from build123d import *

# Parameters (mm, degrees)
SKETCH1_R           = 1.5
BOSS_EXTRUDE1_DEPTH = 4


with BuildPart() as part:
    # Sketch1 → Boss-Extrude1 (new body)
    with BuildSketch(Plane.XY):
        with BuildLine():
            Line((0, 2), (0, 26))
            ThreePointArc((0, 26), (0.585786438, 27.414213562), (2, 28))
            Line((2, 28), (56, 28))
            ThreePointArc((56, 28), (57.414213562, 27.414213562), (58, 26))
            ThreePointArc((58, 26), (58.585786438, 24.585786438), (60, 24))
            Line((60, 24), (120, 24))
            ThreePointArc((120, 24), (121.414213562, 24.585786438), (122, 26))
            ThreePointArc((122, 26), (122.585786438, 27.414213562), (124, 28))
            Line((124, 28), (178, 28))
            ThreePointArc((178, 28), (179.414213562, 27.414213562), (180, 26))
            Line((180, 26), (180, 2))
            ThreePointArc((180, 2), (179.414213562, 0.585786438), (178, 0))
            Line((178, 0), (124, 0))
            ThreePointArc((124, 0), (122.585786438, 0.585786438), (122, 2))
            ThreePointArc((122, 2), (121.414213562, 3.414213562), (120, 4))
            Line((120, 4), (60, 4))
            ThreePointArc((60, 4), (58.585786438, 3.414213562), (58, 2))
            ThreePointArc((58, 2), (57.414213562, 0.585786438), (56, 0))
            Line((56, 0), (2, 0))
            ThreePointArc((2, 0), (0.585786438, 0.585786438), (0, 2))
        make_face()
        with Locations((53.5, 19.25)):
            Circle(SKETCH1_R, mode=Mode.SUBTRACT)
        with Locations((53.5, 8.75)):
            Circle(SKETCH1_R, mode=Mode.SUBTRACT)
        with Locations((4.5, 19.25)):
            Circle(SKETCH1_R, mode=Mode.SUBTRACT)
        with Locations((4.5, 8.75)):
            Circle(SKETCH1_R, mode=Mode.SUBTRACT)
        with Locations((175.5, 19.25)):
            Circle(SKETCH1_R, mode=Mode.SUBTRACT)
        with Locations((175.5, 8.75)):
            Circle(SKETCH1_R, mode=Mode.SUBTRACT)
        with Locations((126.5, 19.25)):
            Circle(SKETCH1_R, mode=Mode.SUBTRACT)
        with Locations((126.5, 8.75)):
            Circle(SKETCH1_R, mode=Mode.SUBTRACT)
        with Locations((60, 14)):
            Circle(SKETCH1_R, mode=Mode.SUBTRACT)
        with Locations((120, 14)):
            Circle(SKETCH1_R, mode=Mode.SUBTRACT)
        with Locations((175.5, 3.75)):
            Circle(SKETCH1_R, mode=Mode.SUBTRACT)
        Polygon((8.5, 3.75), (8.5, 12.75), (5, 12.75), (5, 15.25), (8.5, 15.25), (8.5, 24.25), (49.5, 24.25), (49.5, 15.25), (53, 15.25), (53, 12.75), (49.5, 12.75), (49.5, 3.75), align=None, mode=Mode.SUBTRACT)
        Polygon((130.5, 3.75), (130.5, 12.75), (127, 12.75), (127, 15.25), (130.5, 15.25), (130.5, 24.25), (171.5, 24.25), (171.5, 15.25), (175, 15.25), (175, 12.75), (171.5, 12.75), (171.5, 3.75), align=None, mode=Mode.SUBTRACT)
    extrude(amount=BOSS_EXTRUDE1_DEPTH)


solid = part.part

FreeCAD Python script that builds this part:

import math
import FreeCAD as App
import Part
import Sketcher

doc = App.newDocument("Part")
params = doc.addObject("Spreadsheet::Sheet", "Params")
for row, (alias, value) in enumerate([
    ("sketch1_diameter", "3 mm"),
    ("sketch1_radius", "2 mm"),
    ("sketch1_width", "54 mm"),
    ("sketch1_width2", "60 mm"),
    ("sketch1_width3", "41 mm"),
    ("pad1_length", "4 mm"),
], start=1):
    params.set(f"A{row}", alias)
    params.set(f"B{row}", "=" + value)
    params.setAlias(f"B{row}", alias)

body = doc.addObject("PartDesign::Body", "Body")

# Sketch on XY plane
sketch1 = body.newObject("Sketcher::SketchObject", "Sketch")
sketch1.AttachmentSupport = (doc.getObject("XY_Plane"), [""])
sketch1.MapMode = "FlatFace"
sketch1.addGeometry([
    Part.LineSegment(App.Vector(0, 26, 0), App.Vector(0, 2, 0)),  # 0
    Part.ArcOfCircle(Part.Circle(App.Vector(2, 2, 0), App.Vector(0, 0, 1), 2), math.radians(-180), math.radians(-90)),  # 1
    Part.LineSegment(App.Vector(2, 0, 0), App.Vector(56, 0, 0)),  # 2
    Part.ArcOfCircle(Part.Circle(App.Vector(56, 2, 0), App.Vector(0, 0, 1), 2), math.radians(-90), math.radians(0)),  # 3
    Part.ArcOfCircle(Part.Circle(App.Vector(60, 2, 0), App.Vector(0, 0, 1), 2), math.radians(90), math.radians(180)),  # 4
    Part.LineSegment(App.Vector(60, 4, 0), App.Vector(120, 4, 0)),  # 5
    Part.ArcOfCircle(Part.Circle(App.Vector(120, 2, 0), App.Vector(0, 0, 1), 2), math.radians(0), math.radians(90)),  # 6
    Part.ArcOfCircle(Part.Circle(App.Vector(124, 2, 0), App.Vector(0, 0, 1), 2), math.radians(-180), math.radians(-90)),  # 7
    Part.LineSegment(App.Vector(124, 0, 0), App.Vector(178, 0, 0)),  # 8
    Part.ArcOfCircle(Part.Circle(App.Vector(178, 2, 0), App.Vector(0, 0, 1), 2), math.radians(-90), math.radians(0)),  # 9
    Part.LineSegment(App.Vector(180, 2, 0), App.Vector(180, 26, 0)),  # 10
    Part.ArcOfCircle(Part.Circle(App.Vector(178, 26, 0), App.Vector(0, 0, 1), 2), math.radians(0), math.radians(90)),  # 11
    Part.LineSegment(App.Vector(178, 28, 0), App.Vector(124, 28, 0)),  # 12
    Part.ArcOfCircle(Part.Circle(App.Vector(124, 26, 0), App.Vector(0, 0, 1), 2), math.radians(90), math.radians(180)),  # 13
    Part.ArcOfCircle(Part.Circle(App.Vector(120, 26, 0), App.Vector(0, 0, 1), 2), math.radians(-90), math.radians(0)),  # 14
    Part.LineSegment(App.Vector(120, 24, 0), App.Vector(60, 24, 0)),  # 15
    Part.ArcOfCircle(Part.Circle(App.Vector(60, 26, 0), App.Vector(0, 0, 1), 2), math.radians(-180), math.radians(-90)),  # 16
    Part.ArcOfCircle(Part.Circle(App.Vector(56, 26, 0), App.Vector(0, 0, 1), 2), math.radians(0), math.radians(90)),  # 17
    Part.LineSegment(App.Vector(56, 28, 0), App.Vector(2, 28, 0)),  # 18
    Part.ArcOfCircle(Part.Circle(App.Vector(2, 26, 0), App.Vector(0, 0, 1), 2), math.radians(90), math.radians(180)),  # 19
    Part.Circle(App.Vector(175.5, 3.8, 0), App.Vector(0, 0, 1), 1.5),  # 20
    Part.Circle(App.Vector(175.5, 8.8, 0), App.Vector(0, 0, 1), 1.5),  # 21
    Part.Circle(App.Vector(126.5, 8.8, 0), App.Vector(0, 0, 1), 1.5),  # 22
    Part.Circle(App.Vector(53.5, 8.8, 0), App.Vector(0, 0, 1), 1.5),  # 23
    Part.Circle(App.Vector(4.5, 8.8, 0), App.Vector(0, 0, 1), 1.5),  # 24
    Part.LineSegment(App.Vector(130.5, 3.8, 0), App.Vector(130.5, 12.8, 0)),  # 25
    Part.LineSegment(App.Vector(130.5, 12.8, 0), App.Vector(127, 12.8, 0)),  # 26
    Part.LineSegment(App.Vector(127, 12.8, 0), App.Vector(127, 15.2, 0)),  # 27
    Part.LineSegment(App.Vector(127, 15.2, 0), App.Vector(130.5, 15.2, 0)),  # 28
    Part.LineSegment(App.Vector(130.5, 15.2, 0), App.Vector(130.5, 24.2, 0)),  # 29
    Part.LineSegment(App.Vector(130.5, 24.2, 0), App.Vector(171.5, 24.2, 0)),  # 30
    Part.LineSegment(App.Vector(171.5, 24.2, 0), App.Vector(171.5, 15.2, 0)),  # 31
    Part.LineSegment(App.Vector(171.5, 15.2, 0), App.Vector(175, 15.2, 0)),  # 32
    Part.LineSegment(App.Vector(175, 15.2, 0), App.Vector(175, 12.8, 0)),  # 33
    Part.LineSegment(App.Vector(175, 12.8, 0), App.Vector(171.5, 12.8, 0)),  # 34
    Part.LineSegment(App.Vector(171.5, 12.8, 0), App.Vector(171.5, 3.8, 0)),  # 35
    Part.LineSegment(App.Vector(171.5, 3.8, 0), App.Vector(130.5, 3.8, 0)),  # 36
    Part.Circle(App.Vector(120, 14, 0), App.Vector(0, 0, 1), 1.5),  # 37
    Part.Circle(App.Vector(175.5, 19.2, 0), App.Vector(0, 0, 1), 1.5),  # 38
    Part.Circle(App.Vector(126.5, 19.2, 0), App.Vector(0, 0, 1), 1.5),  # 39
    Part.Circle(App.Vector(60, 14, 0), App.Vector(0, 0, 1), 1.5),  # 40
    Part.LineSegment(App.Vector(8.5, 3.8, 0), App.Vector(8.5, 12.8, 0)),  # 41
    Part.LineSegment(App.Vector(8.5, 12.8, 0), App.Vector(5, 12.8, 0)),  # 42
    Part.LineSegment(App.Vector(5, 12.8, 0), App.Vector(5, 15.2, 0)),  # 43
    Part.LineSegment(App.Vector(5, 15.2, 0), App.Vector(8.5, 15.2, 0)),  # 44
    Part.LineSegment(App.Vector(8.5, 15.2, 0), App.Vector(8.5, 24.2, 0)),  # 45
    Part.LineSegment(App.Vector(8.5, 24.2, 0), App.Vector(49.5, 24.2, 0)),  # 46
    Part.LineSegment(App.Vector(49.5, 24.2, 0), App.Vector(49.5, 15.2, 0)),  # 47
    Part.LineSegment(App.Vector(49.5, 15.2, 0), App.Vector(53, 15.2, 0)),  # 48
    Part.LineSegment(App.Vector(53, 15.2, 0), App.Vector(53, 12.8, 0)),  # 49
    Part.LineSegment(App.Vector(53, 12.8, 0), App.Vector(49.5, 12.8, 0)),  # 50
    Part.LineSegment(App.Vector(49.5, 12.8, 0), App.Vector(49.5, 3.8, 0)),  # 51
    Part.LineSegment(App.Vector(49.5, 3.8, 0), App.Vector(8.5, 3.8, 0)),  # 52
    Part.Circle(App.Vector(53.5, 19.2, 0), App.Vector(0, 0, 1), 1.5),  # 53
    Part.Circle(App.Vector(4.5, 19.2, 0), App.Vector(0, 0, 1), 1.5),  # 54
], False)
sketch1.addConstraint([
    Sketcher.Constraint("Tangent", 0, 2, 1, 1),
    Sketcher.Constraint("Tangent", 1, 2, 2, 1),
    Sketcher.Constraint("Tangent", 2, 2, 3, 1),
    Sketcher.Constraint("Tangent", 3, 2, 4, 2),
    Sketcher.Constraint("Tangent", 4, 1, 5, 1),
    Sketcher.Constraint("Tangent", 5, 2, 6, 2),
    Sketcher.Constraint("Tangent", 6, 1, 7, 1),
    Sketcher.Constraint("Tangent", 7, 2, 8, 1),
    Sketcher.Constraint("Tangent", 8, 2, 9, 1),
    Sketcher.Constraint("Tangent", 9, 2, 10, 1),
    Sketcher.Constraint("Tangent", 10, 2, 11, 1),
    Sketcher.Constraint("Tangent", 11, 2, 12, 1),
    Sketcher.Constraint("Tangent", 12, 2, 13, 1),
    Sketcher.Constraint("Tangent", 13, 2, 14, 2),
    Sketcher.Constraint("Tangent", 14, 1, 15, 1),
    Sketcher.Constraint("Tangent", 15, 2, 16, 2),
    Sketcher.Constraint("Tangent", 16, 1, 17, 1),
    Sketcher.Constraint("Tangent", 17, 2, 18, 1),
    Sketcher.Constraint("Tangent", 18, 2, 19, 1),
    Sketcher.Constraint("Tangent", 19, 2, 0, 1),
    Sketcher.Constraint("Coincident", 25, 2, 26, 1),
    Sketcher.Constraint("Coincident", 26, 2, 27, 1),
    Sketcher.Constraint("Coincident", 27, 2, 28, 1),
    Sketcher.Constraint("Coincident", 28, 2, 29, 1),
    Sketcher.Constraint("Coincident", 29, 2, 30, 1),
    Sketcher.Constraint("Coincident", 30, 2, 31, 1),
    Sketcher.Constraint("Coincident", 31, 2, 32, 1),
    Sketcher.Constraint("Coincident", 32, 2, 33, 1),
    Sketcher.Constraint("Coincident", 33, 2, 34, 1),
    Sketcher.Constraint("Coincident", 34, 2, 35, 1),
    Sketcher.Constraint("Coincident", 35, 2, 36, 1),
    Sketcher.Constraint("Coincident", 36, 2, 25, 1),
    Sketcher.Constraint("Coincident", 41, 2, 42, 1),
    Sketcher.Constraint("Coincident", 42, 2, 43, 1),
    Sketcher.Constraint("Coincident", 43, 2, 44, 1),
    Sketcher.Constraint("Coincident", 44, 2, 45, 1),
    Sketcher.Constraint("Coincident", 45, 2, 46, 1),
    Sketcher.Constraint("Coincident", 46, 2, 47, 1),
    Sketcher.Constraint("Coincident", 47, 2, 48, 1),
    Sketcher.Constraint("Coincident", 48, 2, 49, 1),
    Sketcher.Constraint("Coincident", 49, 2, 50, 1),
    Sketcher.Constraint("Coincident", 50, 2, 51, 1),
    Sketcher.Constraint("Coincident", 51, 2, 52, 1),
    Sketcher.Constraint("Coincident", 52, 2, 41, 1),
    Sketcher.Constraint("Vertical", 0),
    Sketcher.Constraint("Horizontal", 2),
    Sketcher.Constraint("Horizontal", 5),
    Sketcher.Constraint("Horizontal", 8),
    Sketcher.Constraint("Vertical", 10),
    Sketcher.Constraint("Horizontal", 12),
    Sketcher.Constraint("Horizontal", 15),
    Sketcher.Constraint("Horizontal", 18),
    Sketcher.Constraint("Vertical", 25),
    Sketcher.Constraint("Horizontal", 26),
    Sketcher.Constraint("Vertical", 27),
    Sketcher.Constraint("Horizontal", 28),
    Sketcher.Constraint("Vertical", 29),
    Sketcher.Constraint("Horizontal", 30),
    Sketcher.Constraint("Vertical", 31),
    Sketcher.Constraint("Horizontal", 32),
    Sketcher.Constraint("Vertical", 33),
    Sketcher.Constraint("Horizontal", 34),
    Sketcher.Constraint("Vertical", 35),
    Sketcher.Constraint("Horizontal", 36),
    Sketcher.Constraint("Vertical", 41),
    Sketcher.Constraint("Horizontal", 42),
    Sketcher.Constraint("Vertical", 43),
    Sketcher.Constraint("Horizontal", 44),
    Sketcher.Constraint("Vertical", 45),
    Sketcher.Constraint("Horizontal", 46),
    Sketcher.Constraint("Vertical", 47),
    Sketcher.Constraint("Horizontal", 48),
    Sketcher.Constraint("Vertical", 49),
    Sketcher.Constraint("Horizontal", 50),
    Sketcher.Constraint("Vertical", 51),
    Sketcher.Constraint("Horizontal", 52),
    Sketcher.Constraint("Equal", 1, 3),
    Sketcher.Constraint("Equal", 3, 4),
    Sketcher.Constraint("Equal", 4, 6),
    Sketcher.Constraint("Equal", 6, 7),
    Sketcher.Constraint("Equal", 7, 9),
    Sketcher.Constraint("Equal", 9, 11),
    Sketcher.Constraint("Equal", 11, 13),
    Sketcher.Constraint("Equal", 13, 14),
    Sketcher.Constraint("Equal", 14, 16),
    Sketcher.Constraint("Equal", 16, 17),
    Sketcher.Constraint("Equal", 17, 19),
    Sketcher.Constraint("Equal", 20, 21),
    Sketcher.Constraint("Equal", 21, 22),
    Sketcher.Constraint("Equal", 22, 23),
    Sketcher.Constraint("Equal", 23, 24),
    Sketcher.Constraint("Equal", 24, 37),
    Sketcher.Constraint("Equal", 37, 38),
    Sketcher.Constraint("Equal", 38, 39),
    Sketcher.Constraint("Equal", 39, 40),
    Sketcher.Constraint("Equal", 40, 53),
    Sketcher.Constraint("Equal", 53, 54),
    Sketcher.Constraint("PointOnObject", 0, 2, -2),
    Sketcher.Constraint("PointOnObject", 1, 2, -1),
    Sketcher.Constraint("PointOnObject", 7, 2, -1),
    Sketcher.Constraint("Horizontal", 3, 3, 4, 3),
    Sketcher.Constraint("Horizontal", 13, 3, 14, 3),
    Sketcher.Constraint("Horizontal", 16, 3, 17, 3),
    Sketcher.Constraint("Horizontal", 21, 3, 22, 3),
    Sketcher.Constraint("Horizontal", 22, 3, 23, 3),
    Sketcher.Constraint("Horizontal", 23, 3, 24, 3),
    Sketcher.Constraint("Horizontal", 38, 3, 39, 3),
    Sketcher.Constraint("Horizontal", 37, 3, 40, 3),
    Sketcher.Constraint("Horizontal", 39, 3, 53, 3),
    Sketcher.Constraint("Horizontal", 53, 3, 54, 3),
    Sketcher.Constraint("Horizontal", 28, 2, 31, 2),
    Sketcher.Constraint("Horizontal", 26, 2, 33, 2),
    Sketcher.Constraint("Horizontal", 20, 3, 35, 2),
    Sketcher.Constraint("Horizontal", 34, 2, 41, 2),
    Sketcher.Constraint("Horizontal", 32, 2, 43, 2),
    Sketcher.Constraint("Horizontal", 30, 2, 45, 2),
    Sketcher.Constraint("Horizontal", 44, 2, 47, 2),
    Sketcher.Constraint("Horizontal", 42, 2, 49, 2),
    Sketcher.Constraint("Horizontal", 36, 2, 51, 2),
    Sketcher.Constraint("Vertical", 7, 3, 13, 3),
    Sketcher.Constraint("Vertical", 4, 3, 16, 3),
    Sketcher.Constraint("Vertical", 20, 3, 21, 3),
    Sketcher.Constraint("Vertical", 14, 3, 37, 3),
    Sketcher.Constraint("Vertical", 21, 3, 38, 3),
    Sketcher.Constraint("Vertical", 22, 3, 39, 3),
    Sketcher.Constraint("Vertical", 16, 3, 40, 3),
    Sketcher.Constraint("Vertical", 23, 3, 53, 3),
    Sketcher.Constraint("Vertical", 24, 3, 54, 3),
    Sketcher.Constraint("Vertical", 25, 2, 28, 2),
    Sketcher.Constraint("Vertical", 31, 2, 34, 2),
    Sketcher.Constraint("Vertical", 41, 2, 44, 2),
    Sketcher.Constraint("Vertical", 47, 2, 50, 2),
    Sketcher.Constraint("Equal", 2, 8),
    Sketcher.Constraint("Equal", 28, 32),
    Sketcher.Constraint("Equal", 34, 42),
    Sketcher.Constraint("Equal", 36, 46),
    Sketcher.Constraint("Equal", 44, 48),
    Sketcher.Constraint("Equal", 25, 29),
    Sketcher.Constraint("Diameter", 20, 3.0),
    Sketcher.Constraint("Radius", 1, 2.0),
    Sketcher.Constraint("DistanceX", 2, 1, 2, 2, 54.0),
    Sketcher.Constraint("DistanceX", 5, 1, 5, 2, 60.0),
    Sketcher.Constraint("DistanceX", 30, 1, 30, 2, 41.0),
    Sketcher.Constraint("DistanceY", 0, 2, 0, 1, 24.0),
    Sketcher.Constraint("DistanceY", 25, 1, 25, 2, 9.0),
    Sketcher.Constraint("DistanceX", 26, 2, 26, 1, 3.5),
    Sketcher.Constraint("DistanceY", 27, 1, 27, 2, 2.5),
    Sketcher.Constraint("DistanceY", -1, 1, 37, 3, 14.0),
    Sketcher.Constraint("DistanceX", -1, 1, 26, 2, 127.0),
    Sketcher.Constraint("DistanceX", -1, 1, 42, 2, 5.0),
    Sketcher.Constraint("DistanceX", -1, 1, 20, 3, 175.5),
    Sketcher.Constraint("DistanceX", -1, 1, 22, 3, 126.5),
    Sketcher.Constraint("DistanceX", -1, 1, 23, 3, 53.5),
    Sketcher.Constraint("DistanceX", -1, 1, 24, 3, 4.5),
    Sketcher.Constraint("DistanceY", -1, 1, 20, 3, 3.75),
    Sketcher.Constraint("DistanceY", -1, 1, 21, 3, 8.75),
    Sketcher.Constraint("DistanceY", -1, 1, 38, 3, 19.25),
])
sketch1.setExpression("Constraints[138]", "Params.sketch1_diameter")
sketch1.setExpression("Constraints[139]", "Params.sketch1_radius")
sketch1.setExpression("Constraints[140]", "Params.sketch1_width")
sketch1.setExpression("Constraints[141]", "Params.sketch1_width2")
sketch1.setExpression("Constraints[142]", "Params.sketch1_width3")
pad1 = body.newObject("PartDesign::Pad", "Pad")
pad1.Profile = sketch1
pad1.setExpression("Length", "Params.pad1_length")

doc.recompute()
